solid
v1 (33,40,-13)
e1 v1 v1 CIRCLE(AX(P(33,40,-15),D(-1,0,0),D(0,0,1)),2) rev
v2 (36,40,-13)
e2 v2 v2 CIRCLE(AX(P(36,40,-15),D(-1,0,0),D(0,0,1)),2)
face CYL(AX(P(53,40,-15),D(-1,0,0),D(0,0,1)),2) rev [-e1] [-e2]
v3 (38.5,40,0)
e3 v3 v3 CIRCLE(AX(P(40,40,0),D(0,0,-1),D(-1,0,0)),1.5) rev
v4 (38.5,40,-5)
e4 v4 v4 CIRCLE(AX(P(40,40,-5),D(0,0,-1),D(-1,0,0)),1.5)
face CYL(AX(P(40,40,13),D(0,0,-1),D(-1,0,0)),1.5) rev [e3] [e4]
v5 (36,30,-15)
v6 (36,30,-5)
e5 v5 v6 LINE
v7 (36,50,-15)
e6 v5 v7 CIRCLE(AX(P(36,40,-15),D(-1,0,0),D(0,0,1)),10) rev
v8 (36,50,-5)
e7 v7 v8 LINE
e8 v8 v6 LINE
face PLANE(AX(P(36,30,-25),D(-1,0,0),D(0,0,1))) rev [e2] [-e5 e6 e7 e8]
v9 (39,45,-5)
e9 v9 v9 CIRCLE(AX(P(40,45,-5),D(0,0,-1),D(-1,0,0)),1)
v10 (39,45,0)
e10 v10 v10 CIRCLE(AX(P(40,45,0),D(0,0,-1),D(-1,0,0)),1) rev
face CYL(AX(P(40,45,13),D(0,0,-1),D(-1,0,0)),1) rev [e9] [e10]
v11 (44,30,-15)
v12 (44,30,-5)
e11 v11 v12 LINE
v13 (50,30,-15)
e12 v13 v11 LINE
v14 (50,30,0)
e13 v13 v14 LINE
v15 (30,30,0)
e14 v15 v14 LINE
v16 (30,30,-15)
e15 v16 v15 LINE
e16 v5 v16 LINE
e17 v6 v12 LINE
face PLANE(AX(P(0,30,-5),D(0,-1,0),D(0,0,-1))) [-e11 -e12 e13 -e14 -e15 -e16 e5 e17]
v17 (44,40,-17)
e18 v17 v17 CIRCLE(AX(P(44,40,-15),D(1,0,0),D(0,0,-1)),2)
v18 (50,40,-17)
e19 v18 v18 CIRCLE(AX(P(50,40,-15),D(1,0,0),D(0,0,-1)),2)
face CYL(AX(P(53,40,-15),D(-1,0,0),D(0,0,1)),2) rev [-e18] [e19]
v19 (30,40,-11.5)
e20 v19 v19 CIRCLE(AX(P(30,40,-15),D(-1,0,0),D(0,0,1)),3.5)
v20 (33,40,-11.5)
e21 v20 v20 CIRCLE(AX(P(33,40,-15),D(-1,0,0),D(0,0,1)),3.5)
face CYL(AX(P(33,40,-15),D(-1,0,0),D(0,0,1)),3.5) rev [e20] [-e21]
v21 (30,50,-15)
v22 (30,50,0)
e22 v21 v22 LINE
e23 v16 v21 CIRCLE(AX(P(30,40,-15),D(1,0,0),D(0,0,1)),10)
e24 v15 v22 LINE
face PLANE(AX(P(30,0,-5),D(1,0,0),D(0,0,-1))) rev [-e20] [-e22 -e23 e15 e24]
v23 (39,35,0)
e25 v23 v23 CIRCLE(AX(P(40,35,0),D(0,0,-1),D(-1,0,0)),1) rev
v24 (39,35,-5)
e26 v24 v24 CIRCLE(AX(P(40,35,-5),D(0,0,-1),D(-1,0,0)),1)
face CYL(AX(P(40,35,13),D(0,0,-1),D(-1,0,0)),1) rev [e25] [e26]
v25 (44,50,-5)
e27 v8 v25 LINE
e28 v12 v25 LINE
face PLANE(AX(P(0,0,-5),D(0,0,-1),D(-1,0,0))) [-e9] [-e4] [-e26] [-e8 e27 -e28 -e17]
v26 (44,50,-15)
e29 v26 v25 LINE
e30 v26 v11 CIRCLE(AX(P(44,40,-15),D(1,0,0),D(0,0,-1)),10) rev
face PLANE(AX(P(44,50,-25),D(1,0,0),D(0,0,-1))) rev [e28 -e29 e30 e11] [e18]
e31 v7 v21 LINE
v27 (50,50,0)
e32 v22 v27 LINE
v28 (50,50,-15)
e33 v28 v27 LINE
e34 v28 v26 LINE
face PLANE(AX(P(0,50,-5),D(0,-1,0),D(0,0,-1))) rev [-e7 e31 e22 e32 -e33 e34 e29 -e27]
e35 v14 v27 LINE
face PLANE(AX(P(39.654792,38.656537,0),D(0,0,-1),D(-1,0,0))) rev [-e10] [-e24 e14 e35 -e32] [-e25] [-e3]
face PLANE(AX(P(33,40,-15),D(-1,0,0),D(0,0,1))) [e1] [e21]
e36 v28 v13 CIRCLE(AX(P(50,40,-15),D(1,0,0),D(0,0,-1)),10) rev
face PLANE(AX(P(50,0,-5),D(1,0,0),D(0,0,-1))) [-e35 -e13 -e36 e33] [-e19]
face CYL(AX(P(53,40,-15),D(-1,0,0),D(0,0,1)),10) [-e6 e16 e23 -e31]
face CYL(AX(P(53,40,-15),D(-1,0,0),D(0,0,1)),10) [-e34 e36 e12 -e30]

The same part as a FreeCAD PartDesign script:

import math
import FreeCAD as App
import Part
import Sketcher


def edges_at(feature, points):
    """Names of the edges that pass closest to the given points."""
    edges = feature.Shape.Edges
    near = lambda p: min(range(len(edges)), key=lambda i: edges[i].distToShape(Part.Vertex(*p))[0])
    return sorted({f"Edge{near(p) + 1}" for p in points})

doc = App.newDocument("Part")
body = doc.addObject("PartDesign::Body", "Body")

# Sketch on XY plane
sketch1 = body.newObject("Sketcher::SketchObject", "Sketch")
sketch1.AttachmentSupport = (doc.getObject("XY_Plane"), [""])
sketch1.MapMode = "FlatFace"
sketch1.addGeometry([
    Part.LineSegment(App.Vector(0, 80, 0), App.Vector(0, 0, 0)),
    Part.LineSegment(App.Vector(0, 0, 0), App.Vector(80, 0, 0)),
    Part.LineSegment(App.Vector(80, 0, 0), App.Vector(80, 80, 0)),
    Part.LineSegment(App.Vector(80, 80, 0), App.Vector(0, 80, 0)),
], False)
sketch1.addConstraint([
    Sketcher.Constraint("Coincident", 0, 2, 1, 1),
    Sketcher.Constraint("Coincident", 1, 2, 2, 1),
    Sketcher.Constraint("Coincident", 2, 2, 3, 1),
    Sketcher.Constraint("Coincident", 3, 2, 0, 1),
    Sketcher.Constraint("Vertical", 0),
    Sketcher.Constraint("Horizontal", 1),
    Sketcher.Constraint("Vertical", 2),
    Sketcher.Constraint("Horizontal", 3),
    Sketcher.Constraint("Coincident", 0, 2, -1, 1),
    Sketcher.Constraint("Equal", 3, 0),
    Sketcher.Constraint("DistanceX", 1, 1, 1, 2, 80.0),
])
pad1 = body.newObject("PartDesign::Pad", "Pad")
pad1.Profile = sketch1
pad1.Length = 2

# Sketch on XY plane
sketch2 = body.newObject("Sketcher::SketchObject", "Sketch001")
sketch2.AttachmentSupport = (doc.getObject("XY_Plane"), [""])
sketch2.MapMode = "FlatFace"
sketch2.AttachmentOffset = App.Placement(App.Vector(0, 0, 2), App.Rotation())
sketch2.addGeometry([
    Part.LineSegment(App.Vector(0, 80, 0), App.Vector(0, 0, 0)),  # 0
    Part.LineSegment(App.Vector(0, 0, 0), App.Vector(80, 0, 0)),  # 1
    Part.LineSegment(App.Vector(80, 0, 0), App.Vector(80, 80, 0)),  # 2
    Part.LineSegment(App.Vector(80, 80, 0), App.Vector(0, 80, 0)),  # 3
    Part.LineSegment(App.Vector(79, 1, 0), App.Vector(1, 1, 0)),  # 4
    Part.LineSegment(App.Vector(1, 1, 0), App.Vector(1, 79, 0)),  # 5
    Part.LineSegment(App.Vector(1, 79, 0), App.Vector(79, 79, 0)),  # 6
    Part.LineSegment(App.Vector(79, 79, 0), App.Vector(79, 1, 0)),  # 7
], False)
sketch2.addConstraint([
    Sketcher.Constraint("Coincident", 0, 2, 1, 1),
    Sketcher.Constraint("Coincident", 1, 2, 2, 1),
    Sketcher.Constraint("Coincident", 2, 2, 3, 1),
    Sketcher.Constraint("Coincident", 3, 2, 0, 1),
    Sketcher.Constraint("Coincident", 4, 2, 5, 1),
    Sketcher.Constraint("Coincident", 5, 2, 6, 1),
    Sketcher.Constraint("Coincident", 6, 2, 7, 1),
    Sketcher.Constraint("Coincident", 7, 2, 4, 1),
    Sketcher.Constraint("Vertical", 0),
    Sketcher.Constraint("Horizontal", 1),
    Sketcher.Constraint("Vertical", 2),
    Sketcher.Constraint("Horizontal", 3),
    Sketcher.Constraint("Horizontal", 4),
    Sketcher.Constraint("Vertical", 5),
    Sketcher.Constraint("Horizontal", 6),
    Sketcher.Constraint("Vertical", 7),
    Sketcher.Constraint("Coincident", 0, 2, -1, 1),
    Sketcher.Constraint("Equal", 3, 0),
    Sketcher.Constraint("Equal", 6, 5),
    Sketcher.Constraint("DistanceX", 1, 1, 1, 2, 80.0),
    Sketcher.Constraint("DistanceX", 4, 2, 4, 1, 78.0),
    Sketcher.Constraint("DistanceX", -1, 1, 4, 2, 1.0),
    Sketcher.Constraint("DistanceY", -1, 1, 4, 2, 1.0),
])
pad2 = body.newObject("PartDesign::Pad", "Pad001")
pad2.Profile = sketch2
pad2.Length = 15
doc.recompute()

fillet = body.newObject("PartDesign::Fillet", "Fillet")
fillet.Base = (pad2, edges_at(pad2, [
    (1, 79, 9.5),
    (1, 1, 9.5),
    (79, 1, 9.5),
    (79, 79, 9.5),
]))
fillet.Radius = 20
doc.recompute()

fillet2 = body.newObject("PartDesign::Fillet", "Fillet001")
fillet2.Base = (fillet, edges_at(fillet, [
    (40, 1, 2),
    (79, 40, 2),
    (40, 79, 2),
    (1, 40, 2),
    (6.858, 73.142, 2),
    (73.142, 73.142, 2),
    (6.858, 6.858, 2),
    (73.142, 6.858, 2),
]))
fillet2.Radius = 10
doc.recompute()

fillet3 = body.newObject("PartDesign::Fillet", "Fillet002")
fillet3.Base = (fillet2, edges_at(fillet2, [
    (0, 80, 8.5),
    (80, 80, 8.5),
    (80, 0, 8.5),
    (0, 0, 8.5),
]))
fillet3.Radius = 20
doc.recompute()

fillet4 = body.newObject("PartDesign::Fillet", "Fillet003")
fillet4.Base = (fillet3, edges_at(fillet3, [
    (80, 40, 0),
    (0, 40, 0),
    (40, 80, 0),
    (40, 0, 0),
    (5.858, 5.858, 0),
    (5.858, 74.142, 0),
    (74.142, 74.142, 0),
    (74.142, 5.858, 0),
]))
fillet4.Radius = 10

# Sketch on XY plane
sketch3 = body.newObject("Sketcher::SketchObject", "Sketch002")
sketch3.AttachmentSupport = (doc.getObject("XY_Plane"), [""])
sketch3.MapMode = "FlatFace"
sketch3.AttachmentOffset = App.Placement(App.Vector(0, 0, 17), App.Rotation())
sketch3.addGeometry([
    Part.LineSegment(App.Vector(70.635029, 4.10544, 0), App.Vector(72.292825, 5.372122, 0)),  # 0
    Part.LineSegment(App.Vector(72.292825, 5.372122, 0), App.Vector(76.003974, 9.364971, 0)),  # 1
    Part.LineSegment(App.Vector(76.003974, 9.364971, 0), App.Vector(72.435029, 9.364971, 0)),  # 2
    Part.ArcOfCircle(Part.Circle(App.Vector(72.435029, 7.564971, 0), App.Vector(0, 0, 1), 1.8), math.radians(90), math.radians(180)),  # 3
    Part.LineSegment(App.Vector(70.635029, 7.564971, 0), App.Vector(70.635029, 4.10544, 0)),  # 4
    Part.Circle(App.Vector(72.435029, 7.564971, 0), App.Vector(0, 0, 1), 1),  # 5
    Part.LineSegment(App.Vector(9.364971, 4.10544, 0), App.Vector(9.364971, 7.564971, 0)),  # 6
    Part.ArcOfCircle(Part.Circle(App.Vector(7.564971, 7.564971, 0), App.Vector(0, 0, 1), 1.8), math.radians(0), math.radians(90)),  # 7
    Part.LineSegment(App.Vector(7.564971, 9.364971, 0), App.Vector(3.996026, 9.364971, 0)),  # 8
    Part.LineSegment(App.Vector(3.996026, 9.364971, 0), App.Vector(7.707175, 5.372122, 0)),  # 9
    Part.LineSegment(App.Vector(7.707175, 5.372122, 0), App.Vector(9.364971, 4.10544, 0)),  # 10
    Part.Circle(App.Vector(7.564971, 7.564971, 0), App.Vector(0, 0, 1), 1),  # 11
    Part.LineSegment(App.Vector(70.635029, 75.89456, 0), App.Vector(70.635029, 72.435029, 0)),  # 12
    Part.ArcOfCircle(Part.Circle(App.Vector(72.435029, 72.435029, 0), App.Vector(0, 0, 1), 1.8), math.radians(180), math.radians(270)),  # 13
    Part.LineSegment(App.Vector(72.435029, 70.635029, 0), App.Vector(76.003974, 70.635029, 0)),  # 14
    Part.LineSegment(App.Vector(76.003974, 70.635029, 0), App.Vector(72.292825, 74.627878, 0)),  # 15
    Part.LineSegment(App.Vector(72.292825, 74.627878, 0), App.Vector(70.635029, 75.89456, 0)),  # 16
    Part.Circle(App.Vector(72.435029, 72.435029, 0), App.Vector(0, 0, 1), 1),  # 17
    Part.LineSegment(App.Vector(9.364971, 75.89456, 0), App.Vector(7.707175, 74.627878, 0)),  # 18
    Part.LineSegment(App.Vector(7.707175, 74.627878, 0), App.Vector(3.996026, 70.635029, 0)),  # 19
    Part.LineSegment(App.Vector(3.996026, 70.635029, 0), App.Vector(7.564971, 70.635029, 0)),  # 20
    Part.ArcOfCircle(Part.Circle(App.Vector(7.564971, 72.435029, 0), App.Vector(0, 0, 1), 1.8), math.radians(-90), math.radians(0)),  # 21
    Part.LineSegment(App.Vector(9.364971, 72.435029, 0), App.Vector(9.364971, 75.89456, 0)),  # 22
    Part.Circle(App.Vector(7.564971, 72.435029, 0), App.Vector(0, 0, 1), 1),  # 23
], False)
sketch3.addConstraint([
    Sketcher.Constraint("Coincident", 0, 2, 1, 1),
    Sketcher.Constraint("Coincident", 1, 2, 2, 1),
    Sketcher.Constraint("Tangent", 2, 2, 3, 1),
    Sketcher.Constraint("Tangent", 3, 2, 4, 1),
    Sketcher.Constraint("Coincident", 4, 2, 0, 1),
    Sketcher.Constraint("Tangent", 6, 2, 7, 1),
    Sketcher.Constraint("Tangent", 7, 2, 8, 1),
    Sketcher.Constraint("Coincident", 8, 2, 9, 1),
    Sketcher.Constraint("Coincident", 9, 2, 10, 1),
    Sketcher.Constraint("Coincident", 10, 2, 6, 1),
    Sketcher.Constraint("Tangent", 12, 2, 13, 1),
    Sketcher.Constraint("Tangent", 13, 2, 14, 1),
    Sketcher.Constraint("Coincident", 14, 2, 15, 1),
    Sketcher.Constraint("Coincident", 15, 2, 16, 1),
    Sketcher.Constraint("Coincident", 16, 2, 12, 1),
    Sketcher.Constraint("Coincident", 18, 2, 19, 1),
    Sketcher.Constraint("Coincident", 19, 2, 20, 1),
    Sketcher.Constraint("Tangent", 20, 2, 21, 1),
    Sketcher.Constraint("Tangent", 21, 2, 22, 1),
    Sketcher.Constraint("Coincident", 22, 2, 18, 1),
    Sketcher.Constraint("Horizontal", 2),
    Sketcher.Constraint("Vertical", 4),
    Sketcher.Constraint("Vertical", 6),
    Sketcher.Constraint("Horizontal", 8),
    Sketcher.Constraint("Vertical", 12),
    Sketcher.Constraint("Horizontal", 14),
    Sketcher.Constraint("Horizontal", 20),
    Sketcher.Constraint("Vertical", 22),
    Sketcher.Constraint("Coincident", 5, 3, 3, 3),
    Sketcher.Constraint("Coincident", 11, 3, 7, 3),
    Sketcher.Constraint("Coincident", 17, 3, 13, 3),
    Sketcher.Constraint("Coincident", 23, 3, 21, 3),
    Sketcher.Constraint("Equal", 3, 7),
    Sketcher.Constraint("Equal", 5, 11),
    Sketcher.Constraint("Equal", 7, 13),
    Sketcher.Constraint("Equal", 11, 17),
    Sketcher.Constraint("Equal", 13, 21),
    Sketcher.Constraint("Equal", 17, 23),
    Sketcher.Constraint("Parallel", 9, 15),
    Sketcher.Constraint("Parallel", 10, 16),
    Sketcher.Constraint("Parallel", 0, 18),
    Sketcher.Constraint("Parallel", 1, 19),
    Sketcher.Constraint("Horizontal", 5, 3, 7, 3),
    Sketcher.Constraint("Horizontal", 17, 3, 21, 3),
    Sketcher.Constraint("Horizontal", 0, 2, 9, 2),
    Sketcher.Constraint("Horizontal", 4, 2, 10, 2),
    Sketcher.Constraint("Horizontal", 15, 2, 18, 2),
    Sketcher.Constraint("Horizontal", 16, 2, 22, 2),
    Sketcher.Constraint("Vertical", 5, 3, 13, 3),
    Sketcher.Constraint("Vertical", 11, 3, 21, 3),
    Sketcher.Constraint("Vertical", 1, 2, 14, 2),
    Sketcher.Constraint("Vertical", 0, 2, 15, 2),
    Sketcher.Constraint("Vertical", 9, 2, 18, 2),
    Sketcher.Constraint("Vertical", 8, 2, 19, 2),
    Sketcher.Constraint("Diameter", 5, 2.0),
    Sketcher.Constraint("Radius", 3, 1.8),
    Sketcher.Constraint("DistanceY", 4, 2, 4, 1, 3.459531),
    Sketcher.Constraint("Distance", 0, 2.08633),
    Sketcher.Constraint("Distance", 1, 5.45119),
    Sketcher.Constraint("DistanceX", 2, 2, 2, 1, 3.568945),
    Sketcher.Constraint("DistanceX", -1, 1, 3, 3, 72.435029),
    Sketcher.Constraint("DistanceY", -1, 1, 3, 3, 7.564971),
    Sketcher.Constraint("DistanceX", -1, 1, 7, 3, 7.564971),
    Sketcher.Constraint("DistanceY", -1, 1, 13, 3, 72.435029),
])
pad3 = body.newObject("PartDesign::Pad", "Pad002")
pad3.Profile = sketch3
pad3.Length = 6
pad3.Reversed = True

# Sketch on XY plane
sketch4 = body.newObject("Sketcher::SketchObject", "Sketch003")
sketch4.AttachmentSupport = (doc.getObject("XY_Plane"), [""])
sketch4.MapMode = "FlatFace"
sketch4.addGeometry([
    Part.LineSegment(App.Vector(30, 30, 0), App.Vector(30, 50, 0)),
    Part.LineSegment(App.Vector(30, 50, 0), App.Vector(50, 50, 0)),
    Part.LineSegment(App.Vector(50, 50, 0), App.Vector(50, 30, 0)),
    Part.LineSegment(App.Vector(50, 30, 0), App.Vector(30, 30, 0)),
], False)
sketch4.addConstraint([
    Sketcher.Constraint("Coincident", 0, 2, 1, 1),
    Sketcher.Constraint("Coincident", 1, 2, 2, 1),
    Sketcher.Constraint("Coincident", 2, 2, 3, 1),
    Sketcher.Constraint("Coincident", 3, 2, 0, 1),
    Sketcher.Constraint("Vertical", 0),
    Sketcher.Constraint("Horizontal", 1),
    Sketcher.Constraint("Vertical", 2),
    Sketcher.Constraint("Horizontal", 3),
    Sketcher.Constraint("Equal", 3, 0),
    Sketcher.Constraint("DistanceX", 1, 1, 1, 2, 20.0),
    Sketcher.Constraint("DistanceX", -1, 1, 0, 2, 30.0),
    Sketcher.Constraint("DistanceY", -1, 1, 0, 2, 50.0),
])
pad4 = body.newObject("PartDesign::Pad", "Pad003")
pad4.Profile = sketch4
pad4.Length = 5
pad4.Reversed = True

# Sketch on XY plane
sketch5 = body.newObject("Sketcher::SketchObject", "Sketch004")
sketch5.AttachmentSupport = (doc.getObject("XY_Plane"), [""])
sketch5.MapMode = "FlatFace"
sketch5.AttachmentOffset = App.Placement(App.Vector(0, 0, -5), App.Rotation())
sketch5.addGeometry([
    Part.LineSegment(App.Vector(36, 50, 0), App.Vector(36, 30, 0)),  # 0
    Part.LineSegment(App.Vector(36, 30, 0), App.Vector(30, 30, 0)),  # 1
    Part.LineSegment(App.Vector(30, 30, 0), App.Vector(30, 50, 0)),  # 2
    Part.LineSegment(App.Vector(30, 50, 0), App.Vector(36, 50, 0)),  # 3
    Part.LineSegment(App.Vector(50, 50, 0), App.Vector(50, 30, 0)),  # 4
    Part.LineSegment(App.Vector(50, 30, 0), App.Vector(44, 30, 0)),  # 5
    Part.LineSegment(App.Vector(44, 30, 0), App.Vector(44, 50, 0)),  # 6
    Part.LineSegment(App.Vector(44, 50, 0), App.Vector(50, 50, 0)),  # 7
], False)
sketch5.addConstraint([
    Sketcher.Constraint("Coincident", 0, 2, 1, 1),
    Sketcher.Constraint("Coincident", 1, 2, 2, 1),
    Sketcher.Constraint("Coincident", 2, 2, 3, 1),
    Sketcher.Constraint("Coincident", 3, 2, 0, 1),
    Sketcher.Constraint("Coincident", 4, 2, 5, 1),
    Sketcher.Constraint("Coincident", 5, 2, 6, 1),
    Sketcher.Constraint("Coincident", 6, 2, 7, 1),
    Sketcher.Constraint("Coincident", 7, 2, 4, 1),
    Sketcher.Constraint("Vertical", 0),
    Sketcher.Constraint("Horizontal", 1),
    Sketcher.Constraint("Vertical", 2),
    Sketcher.Constraint("Horizontal", 3),
    Sketcher.Constraint("Vertical", 4),
    Sketcher.Constraint("Horizontal", 5),
    Sketcher.Constraint("Vertical", 6),
    Sketcher.Constraint("Horizontal", 7),
    Sketcher.Constraint("Horizontal", 1, 2, 4, 2),
    Sketcher.Constraint("Horizontal", 3, 2, 6, 2),
    Sketcher.Constraint("Equal", 3, 5),
    Sketcher.Constraint("DistanceX", 1, 2, 1, 1, 6.0),
    Sketcher.Constraint("DistanceY", 0, 2, 0, 1, 20.0),
    Sketcher.Constraint("DistanceX", -1, 1, 0, 2, 36.0),
    Sketcher.Constraint("DistanceY", -1, 1, 0, 2, 30.0),
    Sketcher.Constraint("DistanceX", -1, 1, 4, 2, 50.0),
])
pad5 = body.newObject("PartDesign::Pad", "Pad004")
pad5.Profile = sketch5
pad5.Length = 20
pad5.Reversed = True

# Sketch on YZ plane
sketch6 = body.newObject("Sketcher::SketchObject", "Sketch005")
sketch6.AttachmentSupport = (doc.getObject("YZ_Plane"), [""])
sketch6.MapMode = "FlatFace"
sketch6.AttachmentOffset = App.Placement(App.Vector(0, 0, 30), App.Rotation())
sketch6.addGeometry([
    Part.LineSegment(App.Vector(21.186247, -19.756708, 0), App.Vector(30, -15, 0)),  # 0
    Part.ArcOfCircle(Part.Circle(App.Vector(40, -15, 0), App.Vector(0, 0, 1), 10), math.radians(180), math.radians(360)),  # 1
    Part.LineSegment(App.Vector(50, -15, 0), App.Vector(53.846153, -29.16838, 0)),  # 2
    Part.LineSegment(App.Vector(53.846153, -29.16838, 0), App.Vector(27.647992, -29.16838, 0)),  # 3
    Part.LineSegment(App.Vector(27.647992, -29.16838, 0), App.Vector(21.186247, -19.756708, 0)),  # 4
], False)
sketch6.addConstraint([
    Sketcher.Constraint("Coincident", 0, 2, 1, 1),
    Sketcher.Constraint("Coincident", 1, 2, 2, 1),
    Sketcher.Constraint("Coincident", 2, 2, 3, 1),
    Sketcher.Constraint("Coincident", 3, 2, 4, 1),
    Sketcher.Constraint("Coincident", 4, 2, 0, 1),
    Sketcher.Constraint("Horizontal", 3),
    Sketcher.Constraint("Horizontal", 1, 3, 0, 2),
    Sketcher.Constraint("Horizontal", 0, 2, 1, 2),
    Sketcher.Constraint("Radius", 1, 10.0),
    Sketcher.Constraint("DistanceX", -1, 1, 1, 3, 40.0),
    Sketcher.Constraint("DistanceY", 1, 3, -1, 1, 15.0),
    Sketcher.Constraint("DistanceX", 3, 2, 3, 1, 26.198161),
    Sketcher.Constraint("Distance", 2, 14.681141),
    Sketcher.Constraint("Distance", 4, 11.416379),
    Sketcher.Constraint("DistanceY", 2, 2, -1, 1, 29.16838),
    Sketcher.Constraint("DistanceY", 4, 2, -1, 1, 19.756708),
])
pocket1 = body.newObject("PartDesign::Pocket", "Pocket")
pocket1.Profile = sketch6
pocket1.Length = 23
pocket1.Reversed = True

# Sketch on YZ plane
sketch7 = body.newObject("Sketcher::SketchObject", "Sketch006")
sketch7.AttachmentSupport = (doc.getObject("YZ_Plane"), [""])
sketch7.MapMode = "FlatFace"
sketch7.AttachmentOffset = App.Placement(App.Vector(0, 0, 30), App.Rotation())
sketch7.addGeometry(Part.Circle(App.Vector(40, -15, 0), App.Vector(0, 0, 1), 2), False)
sketch7.addConstraint([
    Sketcher.Constraint("Diameter", 0, 4.0),
    Sketcher.Constraint("DistanceX", -1, 1, 0, 3, 40.0),
    Sketcher.Constraint("DistanceY", 0, 3, -1, 1, 15.0),
])
pocket2 = body.newObject("PartDesign::Pocket", "Pocket001")
pocket2.Profile = sketch7
pocket2.Length = 23
pocket2.Reversed = True

# Sketch on YZ plane
sketch8 = body.newObject("Sketcher::SketchObject", "Sketch007")
sketch8.AttachmentSupport = (doc.getObject("YZ_Plane"), [""])
sketch8.MapMode = "FlatFace"
sketch8.AttachmentOffset = App.Placement(App.Vector(0, 0, 30), App.Rotation())
sketch8.addGeometry(Part.Circle(App.Vector(40, -15, 0), App.Vector(0, 0, 1), 3.5), False)
sketch8.addConstraint([
    Sketcher.Constraint("Diameter", 0, 7.0),
    Sketcher.Constraint("DistanceX", -1, 1, 0, 3, 40.0),
    Sketcher.Constraint("DistanceY", 0, 3, -1, 1, 15.0),
])
pocket3 = body.newObject("PartDesign::Pocket", "Pocket002")
pocket3.Profile = sketch8
pocket3.Length = 3
pocket3.Reversed = True

# Sketch on XY plane
sketch9 = body.newObject("Sketcher::SketchObject", "Sketch008")
sketch9.AttachmentSupport = (doc.getObject("XY_Plane"), [""])
sketch9.MapMode = "FlatFace"
sketch9.AttachmentOffset = App.Placement(App.Vector(0, 0, -5), App.Rotation())
sketch9.addGeometry([
    Part.Circle(App.Vector(40, 45, 0), App.Vector(0, 0, 1), 1),
    Part.Circle(App.Vector(40, 35, 0), App.Vector(0, 0, 1), 1),
], False)
sketch9.addConstraint([
    Sketcher.Constraint("Equal", 0, 1),
    Sketcher.Constraint("Vertical", 0, 3, 1, 3),
    Sketcher.Constraint("Diameter", 0, 2.0),
    Sketcher.Constraint("DistanceX", -1, 1, 0, 3, 40.0),
    Sketcher.Constraint("DistanceY", -1, 1, 0, 3, 45.0),
    Sketcher.Constraint("DistanceY", -1, 1, 1, 3, 35.0),
])
pocket4 = body.newObject("PartDesign::Pocket", "Pocket003")
pocket4.Profile = sketch9
pocket4.Length = 18
pocket4.Reversed = True

# Sketch on XY plane
sketch10 = body.newObject("Sketcher::SketchObject", "Sketch009")
sketch10.AttachmentSupport = (doc.getObject("XY_Plane"), [""])
sketch10.MapMode = "FlatFace"
sketch10.AttachmentOffset = App.Placement(App.Vector(0, 0, -5), App.Rotation())
sketch10.addGeometry(Part.Circle(App.Vector(40, 40, 0), App.Vector(0, 0, 1), 1.5), False)
sketch10.addConstraint([
    Sketcher.Constraint("Diameter", 0, 3.0),
    Sketcher.Constraint("DistanceX", -1, 1, 0, 3, 40.0),
    Sketcher.Constraint("DistanceY", -1, 1, 0, 3, 40.0),
])
pocket5 = body.newObject("PartDesign::Pocket", "Pocket004")
pocket5.Profile = sketch10
pocket5.Length = 18
pocket5.Reversed = True

# Sketch on XY plane
sketch11 = body.newObject("Sketcher::SketchObject", "Sketch010")
sketch11.AttachmentSupport = (doc.getObject("XY_Plane"), [""])
sketch11.MapMode = "FlatFace"
sketch11.addGeometry(Part.Circle(App.Vector(39.654792, 38.656537, 0), App.Vector(0, 0, 1), 69.283397), False)
sketch11.addConstraint([
    Sketcher.Constraint("Diameter", 0, 138.566794),
    Sketcher.Constraint("DistanceX", -1, 1, 0, 3, 39.654792),
    Sketcher.Constraint("DistanceY", -1, 1, 0, 3, 38.656537),
])
pocket6 = body.newObject("PartDesign::Pocket", "Pocket005")
pocket6.Profile = sketch11
pocket6.Length = 37
pocket6.Reversed = True

doc.recompute()
